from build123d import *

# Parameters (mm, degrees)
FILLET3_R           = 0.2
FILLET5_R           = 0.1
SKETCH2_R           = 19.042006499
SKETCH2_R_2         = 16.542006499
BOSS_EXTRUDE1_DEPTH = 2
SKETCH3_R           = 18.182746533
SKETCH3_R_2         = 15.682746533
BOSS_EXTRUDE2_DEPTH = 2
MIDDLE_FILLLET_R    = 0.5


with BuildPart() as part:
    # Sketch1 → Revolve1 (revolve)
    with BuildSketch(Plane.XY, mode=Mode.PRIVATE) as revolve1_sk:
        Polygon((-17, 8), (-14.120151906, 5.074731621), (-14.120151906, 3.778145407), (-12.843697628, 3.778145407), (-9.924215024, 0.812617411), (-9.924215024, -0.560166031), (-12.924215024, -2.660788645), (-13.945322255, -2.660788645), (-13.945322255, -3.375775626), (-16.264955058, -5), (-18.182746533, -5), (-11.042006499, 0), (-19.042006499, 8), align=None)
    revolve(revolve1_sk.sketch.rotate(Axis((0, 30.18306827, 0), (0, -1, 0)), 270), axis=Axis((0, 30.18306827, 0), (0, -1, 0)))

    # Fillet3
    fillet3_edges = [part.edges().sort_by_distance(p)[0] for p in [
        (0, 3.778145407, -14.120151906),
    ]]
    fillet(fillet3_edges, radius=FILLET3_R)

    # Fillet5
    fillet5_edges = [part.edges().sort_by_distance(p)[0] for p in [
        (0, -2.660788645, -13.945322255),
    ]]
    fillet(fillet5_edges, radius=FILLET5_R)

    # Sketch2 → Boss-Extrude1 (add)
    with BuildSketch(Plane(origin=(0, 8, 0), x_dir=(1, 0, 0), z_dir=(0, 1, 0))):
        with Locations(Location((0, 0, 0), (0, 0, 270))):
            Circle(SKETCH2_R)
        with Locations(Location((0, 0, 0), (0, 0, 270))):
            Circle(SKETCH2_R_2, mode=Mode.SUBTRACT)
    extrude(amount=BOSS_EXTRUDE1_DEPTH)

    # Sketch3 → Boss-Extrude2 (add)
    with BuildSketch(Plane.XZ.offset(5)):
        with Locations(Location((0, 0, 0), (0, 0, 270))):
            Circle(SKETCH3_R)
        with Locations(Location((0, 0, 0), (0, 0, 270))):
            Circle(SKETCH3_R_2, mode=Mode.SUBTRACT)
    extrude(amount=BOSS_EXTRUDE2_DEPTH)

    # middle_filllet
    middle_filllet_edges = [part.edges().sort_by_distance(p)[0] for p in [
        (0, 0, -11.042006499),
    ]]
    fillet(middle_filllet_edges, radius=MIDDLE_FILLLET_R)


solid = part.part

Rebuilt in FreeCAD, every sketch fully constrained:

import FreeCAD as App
import Part
import Sketcher
Q = App.Units.Quantity


def edges_at(feature, points):
    """Names of the edges that pass closest to the given points."""
    edges = feature.Shape.Edges
    near = lambda p: min(range(len(edges)), key=lambda i: edges[i].distToShape(Part.Vertex(*p))[0])
    return sorted({f"Edge{near(p) + 1}" for p in points})

doc = App.newDocument("Part")
body = doc.addObject("PartDesign::Body", "Body")

# Sketch on XY plane
sketch1 = body.newObject("Sketcher::SketchObject", "Sketch")
sketch1.AttachmentSupport = (doc.getObject("XY_Plane"), [""])
sketch1.MapMode = "FlatFace"
sketch1.addGeometry(Part.LineSegment(App.Vector(-14.1, 5.1, 0), App.Vector(-17, 8, 0)), False)
sketch1.addGeometry(Part.LineSegment(App.Vector(-17, 8, 0), App.Vector(-19, 8, 0)), False)
sketch1.addGeometry(Part.LineSegment(App.Vector(-19, 8, 0), App.Vector(-11, 0, 0)), False)
sketch1.addGeometry(Part.LineSegment(App.Vector(-11, 0, 0), App.Vector(-18.2, -5, 0)), False)
sketch1.addGeometry(Part.LineSegment(App.Vector(-18.2, -5, 0), App.Vector(-16.3, -5, 0)), False)
sketch1.addGeometry(Part.LineSegment(App.Vector(-16.3, -5, 0), App.Vector(-13.9, -3.4, 0)), False)
sketch1.addGeometry(Part.LineSegment(App.Vector(-13.9, -3.4, 0), App.Vector(-13.9, -2.7, 0)), False)
sketch1.addGeometry(Part.LineSegment(App.Vector(-13.9, -2.7, 0), App.Vector(-12.9, -2.7, 0)), False)
sketch1.addGeometry(Part.LineSegment(App.Vector(-12.9, -2.7, 0), App.Vector(-9.9, -0.6, 0)), False)
sketch1.addGeometry(Part.LineSegment(App.Vector(-9.9, -0.6, 0), App.Vector(-9.9, 0.8, 0)), False)
sketch1.addGeometry(Part.LineSegment(App.Vector(-9.9, 0.8, 0), App.Vector(-12.8, 3.8, 0)), False)
sketch1.addGeometry(Part.LineSegment(App.Vector(-12.8, 3.8, 0), App.Vector(-14.1, 3.8, 0)), False)
sketch1.addGeometry(Part.LineSegment(App.Vector(-14.1, 3.8, 0), App.Vector(-14.1, 5.1, 0)), False)
sketch1.addConstraint(Sketcher.Constraint("Coincident", 0, 2, 1, 1))
sketch1.addConstraint(Sketcher.Constraint("Coincident", 1, 2, 2, 1))
sketch1.addConstraint(Sketcher.Constraint("Coincident", 2, 2, 3, 1))
sketch1.addConstraint(Sketcher.Constraint("Coincident", 3, 2, 4, 1))
sketch1.addConstraint(Sketcher.Constraint("Coincident", 4, 2, 5, 1))
sketch1.addConstraint(Sketcher.Constraint("Coincident", 5, 2, 6, 1))
sketch1.addConstraint(Sketcher.Constraint("Coincident", 6, 2, 7, 1))
sketch1.addConstraint(Sketcher.Constraint("Coincident", 7, 2, 8, 1))
sketch1.addConstraint(Sketcher.Constraint("Coincident", 8, 2, 9, 1))
sketch1.addConstraint(Sketcher.Constraint("Coincident", 9, 2, 10, 1))
sketch1.addConstraint(Sketcher.Constraint("Coincident", 10, 2, 11, 1))
sketch1.addConstraint(Sketcher.Constraint("Coincident", 11, 2, 12, 1))
sketch1.addConstraint(Sketcher.Constraint("Coincident", 12, 2, 0, 1))
sketch1.addConstraint(Sketcher.Constraint("Horizontal", 1))
sketch1.addConstraint(Sketcher.Constraint("Horizontal", 4))
sketch1.addConstraint(Sketcher.Constraint("Vertical", 6))
sketch1.addConstraint(Sketcher.Constraint("Horizontal", 7))
sketch1.addConstraint(Sketcher.Constraint("Vertical", 9))
sketch1.addConstraint(Sketcher.Constraint("Horizontal", 11))
sketch1.addConstraint(Sketcher.Constraint("Vertical", 12))
sketch1.addConstraint(Sketcher.Constraint("PointOnObject", 2, 2, -1))
sketch1.addConstraint(Sketcher.Constraint("Parallel", 3, 5))
sketch1.addConstraint(Sketcher.Constraint("Parallel", 5, 8))
sketch1.addConstraint(Sketcher.Constraint("Parallel", 0, 10))
sketch1.addConstraint(Sketcher.Constraint("Angle", 2, Q("-45 deg")))
sketch1.addConstraint(Sketcher.Constraint("Angle", 3, Q("-145 deg")))
sketch1.addConstraint(Sketcher.Constraint("DistanceX", 0, 2, -1, 1, 17.0))
sketch1.addConstraint(Sketcher.Constraint("DistanceY", -1, 1, 0, 2, 8.0))
sketch1.addConstraint(Sketcher.Constraint("DistanceY", 3, 2, -1, 1, 5.0))
sketch1.addConstraint(Sketcher.Constraint("DistanceX", 7, 2, 8, 2, 3.0))
sketch1.addConstraint(Sketcher.Constraint("DistanceX", 4, 1, 4, 2, 1.917791))
sketch1.addConstraint(Sketcher.Constraint("Distance", 5, 2.831749))
sketch1.addConstraint(Sketcher.Constraint("Distance", 10, 4.161458))
sketch1.addConstraint(Sketcher.Constraint("DistanceX", 1, 2, 1, 1, 2.042006))
sketch1.addConstraint(Sketcher.Constraint("DistanceX", 7, 1, 7, 2, 1.021107))
sketch1.addConstraint(Sketcher.Constraint("DistanceX", 11, 2, 11, 1, 1.276454))
sketch1.addConstraint(Sketcher.Constraint("DistanceY", 6, 1, 6, 2, 0.714987))
sketch1.addConstraint(Sketcher.Constraint("DistanceY", 9, 1, 9, 2, 1.372783))
sketch1.addConstraint(Sketcher.Constraint("DistanceY", 12, 1, 12, 2, 1.296586))
revolution = body.newObject("PartDesign::Revolution", "Revolution")
revolution.Profile = sketch1
revolution.ReferenceAxis = (sketch1, ["V_Axis"])
revolution.Angle = 360
doc.recompute()

fillet = body.newObject("PartDesign::Fillet", "Fillet")
fillet.Base = (revolution, edges_at(revolution, [(0, 3.778, -14.12)]))
fillet.Radius = 0.2
doc.recompute()

fillet2 = body.newObject("PartDesign::Fillet", "Fillet001")
fillet2.Base = (fillet, edges_at(fillet, [(0, -2.661, -13.945)]))
fillet2.Radius = 0.1

# Sketch on XZ plane
sketch2 = body.newObject("Sketcher::SketchObject", "Sketch001")
sketch2.AttachmentSupport = (doc.getObject("XZ_Plane"), [""])
sketch2.MapMode = "FlatFace"
sketch2.AttachmentOffset = App.Placement(App.Vector(0, 0, -8), App.Rotation())
sketch2.addGeometry(Part.Circle(App.Vector(0, 0, 0), App.Vector(0, 0, 1), 19), False)
sketch2.addGeometry(Part.Circle(App.Vector(0, 0, 0), App.Vector(0, 0, 1), 17), False)
sketch2.addConstraint(Sketcher.Constraint("Coincident", 0, 3, -1, 1))
sketch2.addConstraint(Sketcher.Constraint("Coincident", 1, 3, -1, 1))
sketch2.addConstraint(Sketcher.Constraint("Diameter", 0, 38.084013))
sketch2.addConstraint(Sketcher.Constraint("Diameter", 1, 33.084013))
pad1 = body.newObject("PartDesign::Pad", "Pad")
pad1.Profile = sketch2
pad1.Length = 2
pad1.Reversed = True

# Sketch on XZ plane
sketch3 = body.newObject("Sketcher::SketchObject", "Sketch002")
sketch3.AttachmentSupport = (doc.getObject("XZ_Plane"), [""])
sketch3.MapMode = "FlatFace"
sketch3.AttachmentOffset = App.Placement(App.Vector(0, 0, 5), App.Rotation())
sketch3.addGeometry(Part.Circle(App.Vector(0, 0, 0), App.Vector(0, 0, 1), 18), False)
sketch3.addGeometry(Part.Circle(App.Vector(0, 0, 0), App.Vector(0, 0, 1), 16), False)
sketch3.addConstraint(Sketcher.Constraint("Coincident", 0, 3, -1, 1))
sketch3.addConstraint(Sketcher.Constraint("Coincident", 1, 3, -1, 1))
sketch3.addConstraint(Sketcher.Constraint("Diameter", 0, 36.365493))
sketch3.addConstraint(Sketcher.Constraint("Diameter", 1, 31.365493))
pad2 = body.newObject("PartDesign::Pad", "Pad001")
pad2.Profile = sketch3
pad2.Length = 2
doc.recompute()

fillet3 = body.newObject("PartDesign::Fillet", "Fillet002")
fillet3.Base = (pad2, edges_at(pad2, [(0, 0, -11.042)]))
fillet3.Radius = 0.5

doc.recompute()
